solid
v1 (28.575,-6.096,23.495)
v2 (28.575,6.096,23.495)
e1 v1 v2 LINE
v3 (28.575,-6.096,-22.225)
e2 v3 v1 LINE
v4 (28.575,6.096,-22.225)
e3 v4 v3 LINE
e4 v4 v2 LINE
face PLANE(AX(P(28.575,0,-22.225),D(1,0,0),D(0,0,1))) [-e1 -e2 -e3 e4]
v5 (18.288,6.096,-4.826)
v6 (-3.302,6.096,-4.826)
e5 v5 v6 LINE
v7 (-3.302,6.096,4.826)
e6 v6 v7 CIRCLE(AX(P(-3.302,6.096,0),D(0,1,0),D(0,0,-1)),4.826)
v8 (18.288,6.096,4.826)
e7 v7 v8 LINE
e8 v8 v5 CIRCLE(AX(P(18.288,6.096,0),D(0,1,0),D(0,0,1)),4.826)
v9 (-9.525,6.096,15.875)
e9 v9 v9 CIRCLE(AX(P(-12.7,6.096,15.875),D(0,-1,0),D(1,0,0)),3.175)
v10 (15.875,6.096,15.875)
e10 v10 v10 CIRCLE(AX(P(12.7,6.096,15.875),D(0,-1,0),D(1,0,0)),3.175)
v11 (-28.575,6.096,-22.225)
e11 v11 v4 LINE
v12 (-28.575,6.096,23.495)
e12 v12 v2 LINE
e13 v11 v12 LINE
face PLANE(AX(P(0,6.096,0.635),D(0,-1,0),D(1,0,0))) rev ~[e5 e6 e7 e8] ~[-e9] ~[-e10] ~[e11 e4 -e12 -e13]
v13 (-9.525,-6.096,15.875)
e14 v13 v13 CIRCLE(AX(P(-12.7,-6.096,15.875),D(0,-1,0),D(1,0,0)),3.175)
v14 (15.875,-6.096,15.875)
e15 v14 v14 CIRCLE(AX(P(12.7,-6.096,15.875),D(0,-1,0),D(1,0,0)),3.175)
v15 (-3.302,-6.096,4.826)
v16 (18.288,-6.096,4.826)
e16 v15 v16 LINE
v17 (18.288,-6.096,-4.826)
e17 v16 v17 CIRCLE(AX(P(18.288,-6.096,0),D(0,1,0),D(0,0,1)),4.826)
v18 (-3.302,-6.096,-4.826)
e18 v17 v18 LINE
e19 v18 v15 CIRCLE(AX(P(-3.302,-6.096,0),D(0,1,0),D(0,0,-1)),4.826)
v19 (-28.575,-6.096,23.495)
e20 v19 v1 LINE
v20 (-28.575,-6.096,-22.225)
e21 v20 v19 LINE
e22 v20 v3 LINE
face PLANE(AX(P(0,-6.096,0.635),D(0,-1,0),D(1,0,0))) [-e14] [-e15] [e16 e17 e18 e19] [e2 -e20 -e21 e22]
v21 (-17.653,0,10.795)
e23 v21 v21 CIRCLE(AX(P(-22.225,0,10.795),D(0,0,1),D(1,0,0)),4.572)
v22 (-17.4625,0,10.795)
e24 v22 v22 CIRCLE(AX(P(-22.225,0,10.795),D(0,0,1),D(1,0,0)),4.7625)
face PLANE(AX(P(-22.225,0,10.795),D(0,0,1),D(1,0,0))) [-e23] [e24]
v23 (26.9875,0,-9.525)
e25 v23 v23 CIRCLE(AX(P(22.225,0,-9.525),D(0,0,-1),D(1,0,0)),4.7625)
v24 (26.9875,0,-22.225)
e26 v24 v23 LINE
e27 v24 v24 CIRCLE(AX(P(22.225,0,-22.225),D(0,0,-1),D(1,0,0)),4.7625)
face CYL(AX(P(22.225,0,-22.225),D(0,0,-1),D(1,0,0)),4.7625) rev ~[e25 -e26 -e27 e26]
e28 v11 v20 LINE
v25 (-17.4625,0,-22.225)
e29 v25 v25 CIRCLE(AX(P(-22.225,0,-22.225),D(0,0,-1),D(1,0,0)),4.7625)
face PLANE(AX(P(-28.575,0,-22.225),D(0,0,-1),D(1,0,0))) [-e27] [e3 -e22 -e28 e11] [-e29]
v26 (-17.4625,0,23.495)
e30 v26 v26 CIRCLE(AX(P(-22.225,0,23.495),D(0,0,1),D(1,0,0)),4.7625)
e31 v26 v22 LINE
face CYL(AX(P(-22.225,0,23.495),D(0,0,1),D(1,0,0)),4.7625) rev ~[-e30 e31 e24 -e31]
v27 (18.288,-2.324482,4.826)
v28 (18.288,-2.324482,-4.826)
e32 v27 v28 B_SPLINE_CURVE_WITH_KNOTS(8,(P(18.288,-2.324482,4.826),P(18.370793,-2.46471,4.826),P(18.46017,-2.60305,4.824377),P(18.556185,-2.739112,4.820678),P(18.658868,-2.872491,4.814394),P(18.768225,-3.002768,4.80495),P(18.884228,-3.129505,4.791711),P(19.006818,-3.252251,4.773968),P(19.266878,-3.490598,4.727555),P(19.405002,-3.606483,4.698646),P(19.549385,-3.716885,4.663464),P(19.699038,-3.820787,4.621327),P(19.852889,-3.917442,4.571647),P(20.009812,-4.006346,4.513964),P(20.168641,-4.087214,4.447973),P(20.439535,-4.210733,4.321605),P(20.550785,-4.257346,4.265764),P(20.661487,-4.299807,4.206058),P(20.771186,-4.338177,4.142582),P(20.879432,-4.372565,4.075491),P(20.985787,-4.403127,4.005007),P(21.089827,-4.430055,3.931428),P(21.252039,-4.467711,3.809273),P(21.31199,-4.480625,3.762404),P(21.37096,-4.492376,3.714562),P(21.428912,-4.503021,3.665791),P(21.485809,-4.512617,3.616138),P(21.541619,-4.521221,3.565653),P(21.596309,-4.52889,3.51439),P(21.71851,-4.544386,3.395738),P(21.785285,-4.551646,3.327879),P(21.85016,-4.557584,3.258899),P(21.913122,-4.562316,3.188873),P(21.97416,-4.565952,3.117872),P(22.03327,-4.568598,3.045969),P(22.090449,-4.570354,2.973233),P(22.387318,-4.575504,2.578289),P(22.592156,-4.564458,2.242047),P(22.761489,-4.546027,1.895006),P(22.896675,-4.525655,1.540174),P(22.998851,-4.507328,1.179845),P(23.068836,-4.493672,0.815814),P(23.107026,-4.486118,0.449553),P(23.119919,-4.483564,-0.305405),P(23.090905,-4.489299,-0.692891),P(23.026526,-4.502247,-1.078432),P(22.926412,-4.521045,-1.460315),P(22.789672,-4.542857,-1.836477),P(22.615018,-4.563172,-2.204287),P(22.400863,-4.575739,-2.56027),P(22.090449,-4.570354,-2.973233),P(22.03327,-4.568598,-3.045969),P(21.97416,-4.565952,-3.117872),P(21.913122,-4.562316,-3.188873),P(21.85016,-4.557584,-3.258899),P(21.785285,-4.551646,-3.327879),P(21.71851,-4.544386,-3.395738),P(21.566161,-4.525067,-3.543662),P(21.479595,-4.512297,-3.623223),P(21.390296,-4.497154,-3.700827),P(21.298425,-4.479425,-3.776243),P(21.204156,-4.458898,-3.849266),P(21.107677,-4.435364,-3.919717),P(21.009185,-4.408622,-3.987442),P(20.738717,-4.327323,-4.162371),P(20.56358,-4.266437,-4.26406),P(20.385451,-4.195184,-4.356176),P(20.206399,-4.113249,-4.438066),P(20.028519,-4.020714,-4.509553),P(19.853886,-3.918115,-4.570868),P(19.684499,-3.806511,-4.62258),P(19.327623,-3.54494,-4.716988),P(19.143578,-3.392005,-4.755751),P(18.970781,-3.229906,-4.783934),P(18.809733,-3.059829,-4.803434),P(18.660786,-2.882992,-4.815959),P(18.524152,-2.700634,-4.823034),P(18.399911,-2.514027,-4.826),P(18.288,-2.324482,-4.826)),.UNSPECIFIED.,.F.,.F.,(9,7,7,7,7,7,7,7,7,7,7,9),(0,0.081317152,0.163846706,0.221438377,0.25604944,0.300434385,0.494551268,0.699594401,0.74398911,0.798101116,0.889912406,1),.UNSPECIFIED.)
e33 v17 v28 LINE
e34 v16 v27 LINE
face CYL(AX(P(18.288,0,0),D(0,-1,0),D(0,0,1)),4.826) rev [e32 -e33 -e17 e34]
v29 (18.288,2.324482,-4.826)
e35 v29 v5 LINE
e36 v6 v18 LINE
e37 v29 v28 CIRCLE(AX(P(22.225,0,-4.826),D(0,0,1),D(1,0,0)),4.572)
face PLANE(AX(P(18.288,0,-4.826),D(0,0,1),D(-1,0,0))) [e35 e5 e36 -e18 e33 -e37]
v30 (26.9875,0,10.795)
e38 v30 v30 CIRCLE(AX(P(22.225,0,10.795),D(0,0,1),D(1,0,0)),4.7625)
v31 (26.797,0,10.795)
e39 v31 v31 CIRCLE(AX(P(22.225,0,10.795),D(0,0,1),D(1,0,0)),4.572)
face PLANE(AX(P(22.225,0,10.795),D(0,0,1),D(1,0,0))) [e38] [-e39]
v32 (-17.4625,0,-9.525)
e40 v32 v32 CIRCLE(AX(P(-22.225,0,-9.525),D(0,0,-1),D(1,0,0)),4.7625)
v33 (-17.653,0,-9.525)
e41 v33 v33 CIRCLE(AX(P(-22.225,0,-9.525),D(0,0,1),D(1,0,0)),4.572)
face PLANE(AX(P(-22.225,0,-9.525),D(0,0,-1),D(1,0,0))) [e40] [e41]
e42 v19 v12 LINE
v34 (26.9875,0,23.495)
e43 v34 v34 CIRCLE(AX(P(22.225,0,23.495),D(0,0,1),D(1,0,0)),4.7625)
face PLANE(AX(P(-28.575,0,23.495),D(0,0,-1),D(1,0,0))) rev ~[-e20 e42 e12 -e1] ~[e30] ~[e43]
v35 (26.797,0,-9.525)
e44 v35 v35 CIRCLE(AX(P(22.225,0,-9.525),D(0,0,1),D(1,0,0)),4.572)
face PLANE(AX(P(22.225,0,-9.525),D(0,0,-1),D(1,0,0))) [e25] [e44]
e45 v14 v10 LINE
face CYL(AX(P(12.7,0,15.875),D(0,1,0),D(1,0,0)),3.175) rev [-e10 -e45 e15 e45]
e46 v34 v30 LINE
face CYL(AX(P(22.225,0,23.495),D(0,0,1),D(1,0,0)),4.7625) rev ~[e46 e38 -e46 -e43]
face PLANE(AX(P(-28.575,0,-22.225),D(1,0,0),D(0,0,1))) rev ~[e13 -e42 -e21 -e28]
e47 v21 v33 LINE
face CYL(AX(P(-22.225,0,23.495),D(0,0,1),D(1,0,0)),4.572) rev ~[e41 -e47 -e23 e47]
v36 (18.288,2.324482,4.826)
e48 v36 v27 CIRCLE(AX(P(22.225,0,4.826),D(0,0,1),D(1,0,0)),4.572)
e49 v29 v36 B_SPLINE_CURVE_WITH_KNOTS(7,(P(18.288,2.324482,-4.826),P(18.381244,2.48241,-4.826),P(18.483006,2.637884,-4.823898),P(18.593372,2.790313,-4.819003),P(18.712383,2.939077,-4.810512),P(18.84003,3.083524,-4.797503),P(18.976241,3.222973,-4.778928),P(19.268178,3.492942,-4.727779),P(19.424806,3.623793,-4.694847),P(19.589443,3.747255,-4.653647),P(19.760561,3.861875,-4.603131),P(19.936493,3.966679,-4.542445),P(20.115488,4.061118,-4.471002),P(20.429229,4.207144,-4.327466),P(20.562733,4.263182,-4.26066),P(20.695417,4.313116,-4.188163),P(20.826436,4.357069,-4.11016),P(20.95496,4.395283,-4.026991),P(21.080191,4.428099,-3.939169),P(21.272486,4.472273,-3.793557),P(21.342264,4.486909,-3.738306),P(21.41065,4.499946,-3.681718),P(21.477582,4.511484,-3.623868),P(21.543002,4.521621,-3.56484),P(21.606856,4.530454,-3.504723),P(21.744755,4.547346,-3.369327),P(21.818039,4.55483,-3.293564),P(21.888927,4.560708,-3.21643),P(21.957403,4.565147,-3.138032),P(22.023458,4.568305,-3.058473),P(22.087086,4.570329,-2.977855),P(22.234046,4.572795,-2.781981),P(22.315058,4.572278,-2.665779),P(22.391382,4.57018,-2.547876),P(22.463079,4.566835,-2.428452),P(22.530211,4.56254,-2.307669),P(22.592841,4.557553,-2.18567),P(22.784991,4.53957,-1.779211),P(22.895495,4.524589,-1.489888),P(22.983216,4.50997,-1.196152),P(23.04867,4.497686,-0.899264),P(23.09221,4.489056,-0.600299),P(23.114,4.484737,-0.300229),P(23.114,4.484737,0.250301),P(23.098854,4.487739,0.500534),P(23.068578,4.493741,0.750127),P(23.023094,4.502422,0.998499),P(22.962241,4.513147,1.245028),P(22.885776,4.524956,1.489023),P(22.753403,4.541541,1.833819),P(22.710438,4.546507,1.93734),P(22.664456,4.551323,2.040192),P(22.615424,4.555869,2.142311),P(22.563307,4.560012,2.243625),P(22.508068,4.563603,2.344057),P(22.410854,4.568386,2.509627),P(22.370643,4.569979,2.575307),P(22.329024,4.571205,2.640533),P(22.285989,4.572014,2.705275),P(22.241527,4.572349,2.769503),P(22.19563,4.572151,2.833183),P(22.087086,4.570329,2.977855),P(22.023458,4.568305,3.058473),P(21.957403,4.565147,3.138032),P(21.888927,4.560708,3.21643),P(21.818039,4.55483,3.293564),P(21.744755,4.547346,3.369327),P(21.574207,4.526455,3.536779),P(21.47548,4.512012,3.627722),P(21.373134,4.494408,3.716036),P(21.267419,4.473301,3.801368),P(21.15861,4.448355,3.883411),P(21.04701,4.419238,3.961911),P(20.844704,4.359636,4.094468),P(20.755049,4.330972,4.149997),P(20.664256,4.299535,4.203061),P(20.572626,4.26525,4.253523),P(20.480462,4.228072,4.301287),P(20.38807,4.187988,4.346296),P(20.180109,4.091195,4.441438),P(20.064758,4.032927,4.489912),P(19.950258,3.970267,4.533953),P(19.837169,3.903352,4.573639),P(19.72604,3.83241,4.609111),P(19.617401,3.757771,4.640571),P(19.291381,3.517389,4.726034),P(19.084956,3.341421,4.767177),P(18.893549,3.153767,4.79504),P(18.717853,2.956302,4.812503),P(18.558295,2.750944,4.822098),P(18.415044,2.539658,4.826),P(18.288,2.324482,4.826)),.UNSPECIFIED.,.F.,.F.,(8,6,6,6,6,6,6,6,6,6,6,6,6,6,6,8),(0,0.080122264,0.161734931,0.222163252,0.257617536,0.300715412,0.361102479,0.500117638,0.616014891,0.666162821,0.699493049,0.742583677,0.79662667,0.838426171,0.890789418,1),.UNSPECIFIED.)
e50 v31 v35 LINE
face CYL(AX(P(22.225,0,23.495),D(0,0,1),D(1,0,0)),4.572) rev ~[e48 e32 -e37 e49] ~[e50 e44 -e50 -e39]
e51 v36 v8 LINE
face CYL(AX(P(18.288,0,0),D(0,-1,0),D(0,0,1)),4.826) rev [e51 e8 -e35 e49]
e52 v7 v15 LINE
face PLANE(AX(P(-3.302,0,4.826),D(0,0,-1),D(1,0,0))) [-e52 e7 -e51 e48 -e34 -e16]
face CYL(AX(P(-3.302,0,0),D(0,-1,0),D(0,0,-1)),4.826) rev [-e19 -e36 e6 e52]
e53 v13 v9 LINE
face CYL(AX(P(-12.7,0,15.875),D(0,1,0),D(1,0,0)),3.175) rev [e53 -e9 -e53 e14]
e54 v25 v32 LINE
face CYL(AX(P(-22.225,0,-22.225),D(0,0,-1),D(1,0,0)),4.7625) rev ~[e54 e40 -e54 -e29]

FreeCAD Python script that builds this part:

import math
import FreeCAD as App
import Part
import Sketcher
Q = App.Units.Quantity


def add_polygon(sketch, points):
    """Adds a closed chain of lines whose ends are joined by coincident constraints."""
    first, n = sketch.GeometryCount, len(points)
    for a, b in zip(points, points[1:] + points[:1]):
        sketch.addGeometry(Part.LineSegment(App.Vector(*a, 0), App.Vector(*b, 0)), False)
    for i in range(n):
        sketch.addConstraint(Sketcher.Constraint("Coincident", first + i, 2, first + (i + 1) % n, 1))

doc = App.newDocument("Part")
body = doc.addObject("PartDesign::Body", "Body")

sketch1 = body.newObject("Sketcher::SketchObject", "Sketch")
sketch1.AttachmentSupport = (doc.getObject("XZ_Plane"), [""])
sketch1.MapMode = "FlatFace"
add_polygon(sketch1, [(-28.6, 23.5), (-28.6, -22.2), (28.6, -22.2), (28.6, 23.5)])
sketch1.addGeometry(Part.LineSegment(App.Vector(18.3, -4.8, 0), App.Vector(-3.3, -4.8, 0)), False)
sketch1.addGeometry(Part.ArcOfCircle(Part.Circle(App.Vector(-3.3, 0, 0), App.Vector(0, 0, 1), 4.8), math.radians(90), math.radians(270)), False)
sketch1.addGeometry(Part.LineSegment(App.Vector(-3.3, 4.8, 0), App.Vector(18.3, 4.8, 0)), False)
sketch1.addGeometry(Part.ArcOfCircle(Part.Circle(App.Vector(18.3, 0, 0), App.Vector(0, 0, 1), 4.8), math.radians(-90), math.radians(90)), False)
sketch1.addGeometry(Part.Circle(App.Vector(-12.7, 15.9, 0), App.Vector(0, 0, 1), 3.2), False)
sketch1.addGeometry(Part.Circle(App.Vector(12.7, 15.9, 0), App.Vector(0, 0, 1), 3.2), False)
sketch1.addConstraint(Sketcher.Constraint("Tangent", 4, 2, 5, 2))
sketch1.addConstraint(Sketcher.Constraint("Tangent", 5, 1, 6, 1))
sketch1.addConstraint(Sketcher.Constraint("Tangent", 6, 2, 7, 2))
sketch1.addConstraint(Sketcher.Constraint("Tangent", 7, 1, 4, 1))
sketch1.addConstraint(Sketcher.Constraint("Vertical", 0))
sketch1.addConstraint(Sketcher.Constraint("Horizontal", 1))
sketch1.addConstraint(Sketcher.Constraint("Vertical", 2))
sketch1.addConstraint(Sketcher.Constraint("Horizontal", 3))
sketch1.addConstraint(Sketcher.Constraint("Horizontal", 4))
sketch1.addConstraint(Sketcher.Constraint("Horizontal", 6))
sketch1.addConstraint(Sketcher.Constraint("Equal", 8, 9))
sketch1.addConstraint(Sketcher.Constraint("Symmetric", 8, 3, 9, 3, -2))
sketch1.addConstraint(Sketcher.Constraint("PointOnObject", 5, 3, -1))
sketch1.addConstraint(Sketcher.Constraint("Diameter", 8, Q("0.25 in")))
sketch1.addConstraint(Sketcher.Constraint("Radius", 5, Q("0.19 in")))
sketch1.addConstraint(Sketcher.Constraint("DistanceY", 0, 2, 0, 1, Q("1.8 in")))
sketch1.addConstraint(Sketcher.Constraint("DistanceX", 8, 3, 9, 3, Q("1 in")))
sketch1.addConstraint(Sketcher.Constraint("DistanceX", 1, 1, 1, 2, Q("2.25 in")))
sketch1.addConstraint(Sketcher.Constraint("DistanceX", 4, 2, 4, 1, Q("0.85 in")))
sketch1.addConstraint(Sketcher.Constraint("DistanceY", 0, 2, 8, 3, Q("1.5 in")))
sketch1.addConstraint(Sketcher.Constraint("DistanceX", 5, 3, -1, 1, Q("0.13 in")))
sketch1.addConstraint(Sketcher.Constraint("DistanceY", -1, 1, 8, 3, Q("0.625 in")))
sketch1.addConstraint(Sketcher.Constraint("DistanceX", 0, 2, -1, 1, Q("1.125 in")))
pad1 = body.newObject("PartDesign::Pad", "Pad")
pad1.Profile = sketch1
pad1.Length = Q("0.48 in")
pad1.Midplane = True

sketch2 = body.newObject("Sketcher::SketchObject", "Sketch001")
sketch2.AttachmentSupport = (doc.getObject("XY_Plane"), [""])
sketch2.MapMode = "FlatFace"
sketch2.AttachmentOffset = App.Placement(App.Vector(0, 0, 0.925 * 25.4), App.Rotation())
sketch2.addGeometry(Part.Circle(App.Vector(-22.2, 0, 0), App.Vector(0, 0, 1), 4.6), False)
sketch2.addGeometry(Part.Circle(App.Vector(22.2, 0, 0), App.Vector(0, 0, 1), 4.6), False)
sketch2.addConstraint(Sketcher.Constraint("Equal", 0, 1))
sketch2.addConstraint(Sketcher.Constraint("Symmetric", 0, 3, 1, 3, -1, 1))
sketch2.addConstraint(Sketcher.Constraint("PointOnObject", 0, 3, -1))
sketch2.addConstraint(Sketcher.Constraint("Diameter", 0, Q("0.36 in")))
sketch2.addConstraint(Sketcher.Constraint("DistanceX", 0, 3, 1, 3, Q("1.75 in")))
pocket1 = body.newObject("PartDesign::Pocket", "Pocket")
pocket1.Profile = sketch2
pocket1.Type = "ThroughAll"

sketch3 = body.newObject("Sketcher::SketchObject", "Sketch002")
sketch3.AttachmentSupport = (doc.getObject("XY_Plane"), [""])
sketch3.MapMode = "FlatFace"
sketch3.AttachmentOffset = App.Placement(App.Vector(0, 0, 0.925 * 25.4), App.Rotation())
sketch3.addGeometry(Part.Circle(App.Vector(-22.2, 0, 0), App.Vector(0, 0, 1), 4.8), False)
sketch3.addGeometry(Part.Circle(App.Vector(22.2, 0, 0), App.Vector(0, 0, 1), 4.8), False)
sketch3.addConstraint(Sketcher.Constraint("Equal", 0, 1))
sketch3.addConstraint(Sketcher.Constraint("Symmetric", 0, 3, 1, 3, -1, 1))
sketch3.addConstraint(Sketcher.Constraint("PointOnObject", 0, 3, -1))
sketch3.addConstraint(Sketcher.Constraint("Diameter", 0, Q("0.375 in")))
sketch3.addConstraint(Sketcher.Constraint("DistanceX", 0, 3, 1, 3, Q("1.75 in")))
pocket2 = body.newObject("PartDesign::Pocket", "Pocket001")
pocket2.Profile = sketch3
pocket2.Length = Q("0.5 in")

sketch4 = body.newObject("Sketcher::SketchObject", "Sketch003")
sketch4.AttachmentSupport = (doc.getObject("XY_Plane"), [""])
sketch4.MapMode = "FlatFace"
sketch4.AttachmentOffset = App.Placement(App.Vector(0, 0, -0.875 * 25.4), App.Rotation())
sketch4.addGeometry(Part.Circle(App.Vector(22.2, 0, 0), App.Vector(0, 0, 1), 4.8), False)
sketch4.addGeometry(Part.Circle(App.Vector(-22.2, 0, 0), App.Vector(0, 0, 1), 4.8), False)
sketch4.addConstraint(Sketcher.Constraint("Equal", 0, 1))
sketch4.addConstraint(Sketcher.Constraint("Symmetric", 0, 3, 1, 3, -1, 1))
sketch4.addConstraint(Sketcher.Constraint("PointOnObject", 0, 3, -1))
sketch4.addConstraint(Sketcher.Constraint("Diameter", 0, Q("0.375 in")))
sketch4.addConstraint(Sketcher.Constraint("DistanceX", 1, 3, 0, 3, Q("1.75 in")))
pocket3 = body.newObject("PartDesign::Pocket", "Pocket002")
pocket3.Profile = sketch4
pocket3.Length = Q("0.5 in")
pocket3.Reversed = True

doc.recompute()
